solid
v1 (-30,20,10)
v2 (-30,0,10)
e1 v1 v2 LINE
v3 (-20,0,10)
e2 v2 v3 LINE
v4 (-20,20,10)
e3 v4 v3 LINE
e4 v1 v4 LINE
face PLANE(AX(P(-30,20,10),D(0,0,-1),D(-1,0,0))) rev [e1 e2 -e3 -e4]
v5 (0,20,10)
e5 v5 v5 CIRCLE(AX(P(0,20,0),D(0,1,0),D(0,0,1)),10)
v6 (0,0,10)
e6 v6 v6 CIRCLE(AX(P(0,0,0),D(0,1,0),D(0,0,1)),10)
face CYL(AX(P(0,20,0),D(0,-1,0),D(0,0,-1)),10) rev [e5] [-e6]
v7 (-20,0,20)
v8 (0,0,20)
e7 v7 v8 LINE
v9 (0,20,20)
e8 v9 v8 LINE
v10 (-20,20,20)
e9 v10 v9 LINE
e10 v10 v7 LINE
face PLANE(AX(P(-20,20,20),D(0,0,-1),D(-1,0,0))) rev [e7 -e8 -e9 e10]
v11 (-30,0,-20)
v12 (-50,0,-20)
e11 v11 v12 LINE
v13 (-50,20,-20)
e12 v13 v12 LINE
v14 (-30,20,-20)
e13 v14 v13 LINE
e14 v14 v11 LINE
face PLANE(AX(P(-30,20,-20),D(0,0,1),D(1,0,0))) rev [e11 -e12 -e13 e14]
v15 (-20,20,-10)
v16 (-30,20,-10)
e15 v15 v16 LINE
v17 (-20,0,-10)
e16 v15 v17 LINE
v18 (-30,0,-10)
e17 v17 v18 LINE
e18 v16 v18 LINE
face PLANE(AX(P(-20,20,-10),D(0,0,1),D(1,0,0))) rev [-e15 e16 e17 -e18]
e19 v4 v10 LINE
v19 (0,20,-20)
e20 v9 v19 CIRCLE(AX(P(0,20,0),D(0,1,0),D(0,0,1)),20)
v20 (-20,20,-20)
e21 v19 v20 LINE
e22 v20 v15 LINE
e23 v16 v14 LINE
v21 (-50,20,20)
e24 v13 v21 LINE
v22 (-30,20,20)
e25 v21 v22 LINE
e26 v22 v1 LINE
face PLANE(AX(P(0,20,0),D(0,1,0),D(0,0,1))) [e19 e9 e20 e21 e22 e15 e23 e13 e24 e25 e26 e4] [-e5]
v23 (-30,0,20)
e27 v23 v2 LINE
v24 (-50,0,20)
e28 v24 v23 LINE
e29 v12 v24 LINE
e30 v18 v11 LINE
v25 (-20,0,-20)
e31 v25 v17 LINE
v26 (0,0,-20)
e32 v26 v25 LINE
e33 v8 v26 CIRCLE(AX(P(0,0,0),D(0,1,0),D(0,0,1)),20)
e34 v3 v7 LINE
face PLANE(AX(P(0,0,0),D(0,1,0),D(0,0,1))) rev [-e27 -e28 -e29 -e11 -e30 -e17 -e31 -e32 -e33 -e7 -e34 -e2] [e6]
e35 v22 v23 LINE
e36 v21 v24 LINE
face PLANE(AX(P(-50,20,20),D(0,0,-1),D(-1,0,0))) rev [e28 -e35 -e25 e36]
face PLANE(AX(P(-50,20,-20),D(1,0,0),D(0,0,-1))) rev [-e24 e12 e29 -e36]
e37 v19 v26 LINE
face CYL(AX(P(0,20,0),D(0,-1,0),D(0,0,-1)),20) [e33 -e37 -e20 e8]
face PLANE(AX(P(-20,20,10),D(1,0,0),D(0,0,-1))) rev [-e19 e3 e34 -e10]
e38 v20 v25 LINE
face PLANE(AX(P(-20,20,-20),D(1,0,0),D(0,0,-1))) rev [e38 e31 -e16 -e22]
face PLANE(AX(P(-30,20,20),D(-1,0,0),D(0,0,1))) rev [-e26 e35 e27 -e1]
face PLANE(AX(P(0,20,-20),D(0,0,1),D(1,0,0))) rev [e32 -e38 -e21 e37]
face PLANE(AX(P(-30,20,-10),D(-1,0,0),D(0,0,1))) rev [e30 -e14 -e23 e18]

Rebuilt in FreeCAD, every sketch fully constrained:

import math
import FreeCAD as App
import Part
import Sketcher
from FreeCAD import Vector

doc = App.newDocument("Part")
body = doc.addObject("PartDesign::Body", "Body")

# Sketch on XZ plane
sketch1 = body.newObject("Sketcher::SketchObject", "Sketch")
sketch1.AttachmentSupport = (doc.getObject("XZ_Plane"), [""])
sketch1.MapMode = "FlatFace"
sketch1.addGeometry([
    Part.LineSegment(Vector(0, -20, 0), Vector(-20, -20, 0)),  # 0
    Part.LineSegment(Vector(-20, -20, 0), Vector(-20, -10, 0)),  # 1
    Part.LineSegment(Vector(-20, -10, 0), Vector(-30, -10, 0)),  # 2
    Part.LineSegment(Vector(-30, -10, 0), Vector(-30, -20, 0)),  # 3
    Part.LineSegment(Vector(-30, -20, 0), Vector(-50, -20, 0)),  # 4
    Part.LineSegment(Vector(-50, -20, 0), Vector(-50, 20, 0)),  # 5
    Part.LineSegment(Vector(-50, 20, 0), Vector(-30, 20, 0)),  # 6
    Part.LineSegment(Vector(-30, 20, 0), Vector(-30, 10, 0)),  # 7
    Part.LineSegment(Vector(-30, 10, 0), Vector(-20, 10, 0)),  # 8
    Part.LineSegment(Vector(-20, 10, 0), Vector(-20, 20, 0)),  # 9
    Part.LineSegment(Vector(-20, 20, 0), Vector(0, 20, 0)),  # 10
    Part.ArcOfCircle(Part.Circle(Vector(0, 0, 0), Vector(0, 0, 1), 20), math.radians(-90), math.radians(90)),  # 11
    Part.Circle(Vector(0, 0, 0), Vector(0, 0, 1), 10),  # 12
], False)
sketch1.addConstraint([
    Sketcher.Constraint("Coincident", 0, 2, 1, 1),
    Sketcher.Constraint("Coincident", 1, 2, 2, 1),
    Sketcher.Constraint("Coincident", 2, 2, 3, 1),
    Sketcher.Constraint("Coincident", 3, 2, 4, 1),
    Sketcher.Constraint("Coincident", 4, 2, 5, 1),
    Sketcher.Constraint("Coincident", 5, 2, 6, 1),
    Sketcher.Constraint("Coincident", 6, 2, 7, 1),
    Sketcher.Constraint("Coincident", 7, 2, 8, 1),
    Sketcher.Constraint("Coincident", 8, 2, 9, 1),
    Sketcher.Constraint("Coincident", 9, 2, 10, 1),
    Sketcher.Constraint("Tangent", 10, 2, 11, 2),
    Sketcher.Constraint("Tangent", 11, 1, 0, 1),
    Sketcher.Constraint("Horizontal", 0),
    Sketcher.Constraint("Vertical", 1),
    Sketcher.Constraint("Horizontal", 2),
    Sketcher.Constraint("Vertical", 3),
    Sketcher.Constraint("Horizontal", 4),
    Sketcher.Constraint("Vertical", 5),
    Sketcher.Constraint("Horizontal", 6),
    Sketcher.Constraint("Vertical", 7),
    Sketcher.Constraint("Horizontal", 8),
    Sketcher.Constraint("Vertical", 9),
    Sketcher.Constraint("Horizontal", 10),
    Sketcher.Constraint("Coincident", 11, 3, -1, 1),
    Sketcher.Constraint("Coincident", 12, 3, -1, 1),
    Sketcher.Constraint("Symmetric", 3, 2, 6, 2, -1),
    Sketcher.Constraint("Symmetric", 1, 2, 8, 2, -1),
    Sketcher.Constraint("Horizontal", 0, 2, 3, 2),
    Sketcher.Constraint("Equal", 0, 4),
    Sketcher.Constraint("Equal", 8, 1),
    Sketcher.Constraint("Diameter", 12, 20.0),
    Sketcher.Constraint("Radius", 11, 20.0),
    Sketcher.Constraint("DistanceX", 0, 2, 0, 1, 20.0),
    Sketcher.Constraint("DistanceX", 2, 2, 2, 1, 10.0),
])
pad1 = body.newObject("PartDesign::Pad", "Pad")
pad1.Profile = sketch1
pad1.Length = 20
pad1.Reversed = True

doc.recompute()
